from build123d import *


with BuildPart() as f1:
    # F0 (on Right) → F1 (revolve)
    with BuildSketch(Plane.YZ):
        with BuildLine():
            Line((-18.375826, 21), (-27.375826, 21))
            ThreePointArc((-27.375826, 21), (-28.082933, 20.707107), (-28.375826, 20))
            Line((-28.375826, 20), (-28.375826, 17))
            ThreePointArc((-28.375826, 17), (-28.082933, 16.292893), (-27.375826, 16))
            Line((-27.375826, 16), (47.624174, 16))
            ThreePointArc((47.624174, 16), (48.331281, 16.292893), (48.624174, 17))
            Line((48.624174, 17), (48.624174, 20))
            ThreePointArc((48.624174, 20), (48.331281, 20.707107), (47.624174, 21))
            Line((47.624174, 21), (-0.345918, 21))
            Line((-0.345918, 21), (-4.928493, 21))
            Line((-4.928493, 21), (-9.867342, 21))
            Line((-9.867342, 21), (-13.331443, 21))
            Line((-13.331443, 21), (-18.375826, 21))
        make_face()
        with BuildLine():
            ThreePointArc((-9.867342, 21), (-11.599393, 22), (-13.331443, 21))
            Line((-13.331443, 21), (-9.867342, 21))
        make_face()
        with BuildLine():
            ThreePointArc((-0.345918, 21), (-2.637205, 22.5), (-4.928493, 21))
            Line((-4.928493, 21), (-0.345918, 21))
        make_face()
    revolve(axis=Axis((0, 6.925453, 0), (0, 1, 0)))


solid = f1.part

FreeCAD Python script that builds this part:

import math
import FreeCAD as App
import Part
import Sketcher

V = App.Vector

doc = App.newDocument("Part")
body = doc.addObject("PartDesign::Body", "Body")

sketch1 = body.newObject("Sketcher::SketchObject", "Sketch")
sketch1.AttachmentSupport = (doc.getObject("YZ_Plane"), [""])
sketch1.MapMode = "FlatFace"
sketch1.addGeometry(Part.ArcOfCircle(Part.Circle(V(-27.4, 20, 0), V(0, 0, 1), 1), math.radians(90), math.radians(180)), False)
sketch1.addGeometry(Part.LineSegment(V(-28.4, 20, 0), V(-28.4, 17, 0)), False)
sketch1.addGeometry(Part.ArcOfCircle(Part.Circle(V(-27.4, 17, 0), V(0, 0, 1), 1), math.radians(180), math.radians(270)), False)
sketch1.addGeometry(Part.LineSegment(V(-27.4, 16, 0), V(47.6, 16, 0)), False)
sketch1.addGeometry(Part.ArcOfCircle(Part.Circle(V(47.6, 17, 0), V(0, 0, 1), 1), math.radians(-90), math.radians(0)), False)
sketch1.addGeometry(Part.LineSegment(V(48.6, 17, 0), V(48.6, 20, 0)), False)
sketch1.addGeometry(Part.ArcOfCircle(Part.Circle(V(47.6, 20, 0), V(0, 0, 1), 1), math.radians(0), math.radians(90)), False)
sketch1.addGeometry(Part.LineSegment(V(47.6, 21, 0), V(-0.3, 21, 0)), False)
sketch1.addGeometry(Part.ArcOfCircle(Part.Circle(V(-2.6, 20, 0), V(0, 0, 1), 2.5), math.radians(24), math.radians(156)), False)
sketch1.addGeometry(Part.LineSegment(V(-4.9, 21, 0), V(-9.9, 21, 0)), False)
sketch1.addGeometry(Part.ArcOfCircle(Part.Circle(V(-11.6, 20, 0), V(0, 0, 1), 2), math.radians(30), math.radians(150)), False)
sketch1.addGeometry(Part.LineSegment(V(-13.3, 21, 0), V(-27.4, 21, 0)), False)
sketch1.addConstraint(Sketcher.Constraint("Tangent", 0, 2, 1, 1))
sketch1.addConstraint(Sketcher.Constraint("Tangent", 1, 2, 2, 1))
sketch1.addConstraint(Sketcher.Constraint("Tangent", 2, 2, 3, 1))
sketch1.addConstraint(Sketcher.Constraint("Tangent", 3, 2, 4, 1))
sketch1.addConstraint(Sketcher.Constraint("Tangent", 4, 2, 5, 1))
sketch1.addConstraint(Sketcher.Constraint("Tangent", 5, 2, 6, 1))
sketch1.addConstraint(Sketcher.Constraint("Tangent", 6, 2, 7, 1))
sketch1.addConstraint(Sketcher.Constraint("Coincident", 7, 2, 8, 1))
sketch1.addConstraint(Sketcher.Constraint("Coincident", 8, 2, 9, 1))
sketch1.addConstraint(Sketcher.Constraint("Coincident", 9, 2, 10, 1))
sketch1.addConstraint(Sketcher.Constraint("Coincident", 10, 2, 11, 1))
sketch1.addConstraint(Sketcher.Constraint("Tangent", 11, 2, 0, 1))
sketch1.addConstraint(Sketcher.Constraint("Vertical", 1))
sketch1.addConstraint(Sketcher.Constraint("Horizontal", 3))
sketch1.addConstraint(Sketcher.Constraint("Vertical", 5))
sketch1.addConstraint(Sketcher.Constraint("Horizontal", 7))
sketch1.addConstraint(Sketcher.Constraint("Horizontal", 9))
sketch1.addConstraint(Sketcher.Constraint("Horizontal", 11))
sketch1.addConstraint(Sketcher.Constraint("Equal", 0, 2))
sketch1.addConstraint(Sketcher.Constraint("Equal", 2, 4))
sketch1.addConstraint(Sketcher.Constraint("Equal", 4, 6))
sketch1.addConstraint(Sketcher.Constraint("Horizontal", 0, 3, 6, 3))
sketch1.addConstraint(Sketcher.Constraint("Horizontal", 6, 3, 8, 3))
sketch1.addConstraint(Sketcher.Constraint("Horizontal", 8, 3, 10, 3))
sketch1.addConstraint(Sketcher.Constraint("Horizontal", 7, 2, 8, 2))
sketch1.addConstraint(Sketcher.Constraint("Radius", 0, 0.999999))
sketch1.addConstraint(Sketcher.Constraint("Radius", 10, 1.999999))
sketch1.addConstraint(Sketcher.Constraint("Radius", 8, 2.499999))
sketch1.addConstraint(Sketcher.Constraint("DistanceX", 3, 1, 3, 2, 75.0))
sketch1.addConstraint(Sketcher.Constraint("DistanceY", 1, 2, 1, 1, 3.0))
sketch1.addConstraint(Sketcher.Constraint("DistanceY", -1, 1, 0, 3, 20.000001))
sketch1.addConstraint(Sketcher.Constraint("DistanceX", 7, 2, 7, 1, 47.970092))
sketch1.addConstraint(Sketcher.Constraint("DistanceX", 9, 2, 9, 1, 4.938849))
sketch1.addConstraint(Sketcher.Constraint("DistanceX", 0, 3, -1, 1, 27.375827))
revolution = body.newObject("PartDesign::Revolution", "Revolution")
revolution.Profile = sketch1
revolution.ReferenceAxis = (sketch1, ["H_Axis"])
revolution.Angle = 360

doc.recompute()
